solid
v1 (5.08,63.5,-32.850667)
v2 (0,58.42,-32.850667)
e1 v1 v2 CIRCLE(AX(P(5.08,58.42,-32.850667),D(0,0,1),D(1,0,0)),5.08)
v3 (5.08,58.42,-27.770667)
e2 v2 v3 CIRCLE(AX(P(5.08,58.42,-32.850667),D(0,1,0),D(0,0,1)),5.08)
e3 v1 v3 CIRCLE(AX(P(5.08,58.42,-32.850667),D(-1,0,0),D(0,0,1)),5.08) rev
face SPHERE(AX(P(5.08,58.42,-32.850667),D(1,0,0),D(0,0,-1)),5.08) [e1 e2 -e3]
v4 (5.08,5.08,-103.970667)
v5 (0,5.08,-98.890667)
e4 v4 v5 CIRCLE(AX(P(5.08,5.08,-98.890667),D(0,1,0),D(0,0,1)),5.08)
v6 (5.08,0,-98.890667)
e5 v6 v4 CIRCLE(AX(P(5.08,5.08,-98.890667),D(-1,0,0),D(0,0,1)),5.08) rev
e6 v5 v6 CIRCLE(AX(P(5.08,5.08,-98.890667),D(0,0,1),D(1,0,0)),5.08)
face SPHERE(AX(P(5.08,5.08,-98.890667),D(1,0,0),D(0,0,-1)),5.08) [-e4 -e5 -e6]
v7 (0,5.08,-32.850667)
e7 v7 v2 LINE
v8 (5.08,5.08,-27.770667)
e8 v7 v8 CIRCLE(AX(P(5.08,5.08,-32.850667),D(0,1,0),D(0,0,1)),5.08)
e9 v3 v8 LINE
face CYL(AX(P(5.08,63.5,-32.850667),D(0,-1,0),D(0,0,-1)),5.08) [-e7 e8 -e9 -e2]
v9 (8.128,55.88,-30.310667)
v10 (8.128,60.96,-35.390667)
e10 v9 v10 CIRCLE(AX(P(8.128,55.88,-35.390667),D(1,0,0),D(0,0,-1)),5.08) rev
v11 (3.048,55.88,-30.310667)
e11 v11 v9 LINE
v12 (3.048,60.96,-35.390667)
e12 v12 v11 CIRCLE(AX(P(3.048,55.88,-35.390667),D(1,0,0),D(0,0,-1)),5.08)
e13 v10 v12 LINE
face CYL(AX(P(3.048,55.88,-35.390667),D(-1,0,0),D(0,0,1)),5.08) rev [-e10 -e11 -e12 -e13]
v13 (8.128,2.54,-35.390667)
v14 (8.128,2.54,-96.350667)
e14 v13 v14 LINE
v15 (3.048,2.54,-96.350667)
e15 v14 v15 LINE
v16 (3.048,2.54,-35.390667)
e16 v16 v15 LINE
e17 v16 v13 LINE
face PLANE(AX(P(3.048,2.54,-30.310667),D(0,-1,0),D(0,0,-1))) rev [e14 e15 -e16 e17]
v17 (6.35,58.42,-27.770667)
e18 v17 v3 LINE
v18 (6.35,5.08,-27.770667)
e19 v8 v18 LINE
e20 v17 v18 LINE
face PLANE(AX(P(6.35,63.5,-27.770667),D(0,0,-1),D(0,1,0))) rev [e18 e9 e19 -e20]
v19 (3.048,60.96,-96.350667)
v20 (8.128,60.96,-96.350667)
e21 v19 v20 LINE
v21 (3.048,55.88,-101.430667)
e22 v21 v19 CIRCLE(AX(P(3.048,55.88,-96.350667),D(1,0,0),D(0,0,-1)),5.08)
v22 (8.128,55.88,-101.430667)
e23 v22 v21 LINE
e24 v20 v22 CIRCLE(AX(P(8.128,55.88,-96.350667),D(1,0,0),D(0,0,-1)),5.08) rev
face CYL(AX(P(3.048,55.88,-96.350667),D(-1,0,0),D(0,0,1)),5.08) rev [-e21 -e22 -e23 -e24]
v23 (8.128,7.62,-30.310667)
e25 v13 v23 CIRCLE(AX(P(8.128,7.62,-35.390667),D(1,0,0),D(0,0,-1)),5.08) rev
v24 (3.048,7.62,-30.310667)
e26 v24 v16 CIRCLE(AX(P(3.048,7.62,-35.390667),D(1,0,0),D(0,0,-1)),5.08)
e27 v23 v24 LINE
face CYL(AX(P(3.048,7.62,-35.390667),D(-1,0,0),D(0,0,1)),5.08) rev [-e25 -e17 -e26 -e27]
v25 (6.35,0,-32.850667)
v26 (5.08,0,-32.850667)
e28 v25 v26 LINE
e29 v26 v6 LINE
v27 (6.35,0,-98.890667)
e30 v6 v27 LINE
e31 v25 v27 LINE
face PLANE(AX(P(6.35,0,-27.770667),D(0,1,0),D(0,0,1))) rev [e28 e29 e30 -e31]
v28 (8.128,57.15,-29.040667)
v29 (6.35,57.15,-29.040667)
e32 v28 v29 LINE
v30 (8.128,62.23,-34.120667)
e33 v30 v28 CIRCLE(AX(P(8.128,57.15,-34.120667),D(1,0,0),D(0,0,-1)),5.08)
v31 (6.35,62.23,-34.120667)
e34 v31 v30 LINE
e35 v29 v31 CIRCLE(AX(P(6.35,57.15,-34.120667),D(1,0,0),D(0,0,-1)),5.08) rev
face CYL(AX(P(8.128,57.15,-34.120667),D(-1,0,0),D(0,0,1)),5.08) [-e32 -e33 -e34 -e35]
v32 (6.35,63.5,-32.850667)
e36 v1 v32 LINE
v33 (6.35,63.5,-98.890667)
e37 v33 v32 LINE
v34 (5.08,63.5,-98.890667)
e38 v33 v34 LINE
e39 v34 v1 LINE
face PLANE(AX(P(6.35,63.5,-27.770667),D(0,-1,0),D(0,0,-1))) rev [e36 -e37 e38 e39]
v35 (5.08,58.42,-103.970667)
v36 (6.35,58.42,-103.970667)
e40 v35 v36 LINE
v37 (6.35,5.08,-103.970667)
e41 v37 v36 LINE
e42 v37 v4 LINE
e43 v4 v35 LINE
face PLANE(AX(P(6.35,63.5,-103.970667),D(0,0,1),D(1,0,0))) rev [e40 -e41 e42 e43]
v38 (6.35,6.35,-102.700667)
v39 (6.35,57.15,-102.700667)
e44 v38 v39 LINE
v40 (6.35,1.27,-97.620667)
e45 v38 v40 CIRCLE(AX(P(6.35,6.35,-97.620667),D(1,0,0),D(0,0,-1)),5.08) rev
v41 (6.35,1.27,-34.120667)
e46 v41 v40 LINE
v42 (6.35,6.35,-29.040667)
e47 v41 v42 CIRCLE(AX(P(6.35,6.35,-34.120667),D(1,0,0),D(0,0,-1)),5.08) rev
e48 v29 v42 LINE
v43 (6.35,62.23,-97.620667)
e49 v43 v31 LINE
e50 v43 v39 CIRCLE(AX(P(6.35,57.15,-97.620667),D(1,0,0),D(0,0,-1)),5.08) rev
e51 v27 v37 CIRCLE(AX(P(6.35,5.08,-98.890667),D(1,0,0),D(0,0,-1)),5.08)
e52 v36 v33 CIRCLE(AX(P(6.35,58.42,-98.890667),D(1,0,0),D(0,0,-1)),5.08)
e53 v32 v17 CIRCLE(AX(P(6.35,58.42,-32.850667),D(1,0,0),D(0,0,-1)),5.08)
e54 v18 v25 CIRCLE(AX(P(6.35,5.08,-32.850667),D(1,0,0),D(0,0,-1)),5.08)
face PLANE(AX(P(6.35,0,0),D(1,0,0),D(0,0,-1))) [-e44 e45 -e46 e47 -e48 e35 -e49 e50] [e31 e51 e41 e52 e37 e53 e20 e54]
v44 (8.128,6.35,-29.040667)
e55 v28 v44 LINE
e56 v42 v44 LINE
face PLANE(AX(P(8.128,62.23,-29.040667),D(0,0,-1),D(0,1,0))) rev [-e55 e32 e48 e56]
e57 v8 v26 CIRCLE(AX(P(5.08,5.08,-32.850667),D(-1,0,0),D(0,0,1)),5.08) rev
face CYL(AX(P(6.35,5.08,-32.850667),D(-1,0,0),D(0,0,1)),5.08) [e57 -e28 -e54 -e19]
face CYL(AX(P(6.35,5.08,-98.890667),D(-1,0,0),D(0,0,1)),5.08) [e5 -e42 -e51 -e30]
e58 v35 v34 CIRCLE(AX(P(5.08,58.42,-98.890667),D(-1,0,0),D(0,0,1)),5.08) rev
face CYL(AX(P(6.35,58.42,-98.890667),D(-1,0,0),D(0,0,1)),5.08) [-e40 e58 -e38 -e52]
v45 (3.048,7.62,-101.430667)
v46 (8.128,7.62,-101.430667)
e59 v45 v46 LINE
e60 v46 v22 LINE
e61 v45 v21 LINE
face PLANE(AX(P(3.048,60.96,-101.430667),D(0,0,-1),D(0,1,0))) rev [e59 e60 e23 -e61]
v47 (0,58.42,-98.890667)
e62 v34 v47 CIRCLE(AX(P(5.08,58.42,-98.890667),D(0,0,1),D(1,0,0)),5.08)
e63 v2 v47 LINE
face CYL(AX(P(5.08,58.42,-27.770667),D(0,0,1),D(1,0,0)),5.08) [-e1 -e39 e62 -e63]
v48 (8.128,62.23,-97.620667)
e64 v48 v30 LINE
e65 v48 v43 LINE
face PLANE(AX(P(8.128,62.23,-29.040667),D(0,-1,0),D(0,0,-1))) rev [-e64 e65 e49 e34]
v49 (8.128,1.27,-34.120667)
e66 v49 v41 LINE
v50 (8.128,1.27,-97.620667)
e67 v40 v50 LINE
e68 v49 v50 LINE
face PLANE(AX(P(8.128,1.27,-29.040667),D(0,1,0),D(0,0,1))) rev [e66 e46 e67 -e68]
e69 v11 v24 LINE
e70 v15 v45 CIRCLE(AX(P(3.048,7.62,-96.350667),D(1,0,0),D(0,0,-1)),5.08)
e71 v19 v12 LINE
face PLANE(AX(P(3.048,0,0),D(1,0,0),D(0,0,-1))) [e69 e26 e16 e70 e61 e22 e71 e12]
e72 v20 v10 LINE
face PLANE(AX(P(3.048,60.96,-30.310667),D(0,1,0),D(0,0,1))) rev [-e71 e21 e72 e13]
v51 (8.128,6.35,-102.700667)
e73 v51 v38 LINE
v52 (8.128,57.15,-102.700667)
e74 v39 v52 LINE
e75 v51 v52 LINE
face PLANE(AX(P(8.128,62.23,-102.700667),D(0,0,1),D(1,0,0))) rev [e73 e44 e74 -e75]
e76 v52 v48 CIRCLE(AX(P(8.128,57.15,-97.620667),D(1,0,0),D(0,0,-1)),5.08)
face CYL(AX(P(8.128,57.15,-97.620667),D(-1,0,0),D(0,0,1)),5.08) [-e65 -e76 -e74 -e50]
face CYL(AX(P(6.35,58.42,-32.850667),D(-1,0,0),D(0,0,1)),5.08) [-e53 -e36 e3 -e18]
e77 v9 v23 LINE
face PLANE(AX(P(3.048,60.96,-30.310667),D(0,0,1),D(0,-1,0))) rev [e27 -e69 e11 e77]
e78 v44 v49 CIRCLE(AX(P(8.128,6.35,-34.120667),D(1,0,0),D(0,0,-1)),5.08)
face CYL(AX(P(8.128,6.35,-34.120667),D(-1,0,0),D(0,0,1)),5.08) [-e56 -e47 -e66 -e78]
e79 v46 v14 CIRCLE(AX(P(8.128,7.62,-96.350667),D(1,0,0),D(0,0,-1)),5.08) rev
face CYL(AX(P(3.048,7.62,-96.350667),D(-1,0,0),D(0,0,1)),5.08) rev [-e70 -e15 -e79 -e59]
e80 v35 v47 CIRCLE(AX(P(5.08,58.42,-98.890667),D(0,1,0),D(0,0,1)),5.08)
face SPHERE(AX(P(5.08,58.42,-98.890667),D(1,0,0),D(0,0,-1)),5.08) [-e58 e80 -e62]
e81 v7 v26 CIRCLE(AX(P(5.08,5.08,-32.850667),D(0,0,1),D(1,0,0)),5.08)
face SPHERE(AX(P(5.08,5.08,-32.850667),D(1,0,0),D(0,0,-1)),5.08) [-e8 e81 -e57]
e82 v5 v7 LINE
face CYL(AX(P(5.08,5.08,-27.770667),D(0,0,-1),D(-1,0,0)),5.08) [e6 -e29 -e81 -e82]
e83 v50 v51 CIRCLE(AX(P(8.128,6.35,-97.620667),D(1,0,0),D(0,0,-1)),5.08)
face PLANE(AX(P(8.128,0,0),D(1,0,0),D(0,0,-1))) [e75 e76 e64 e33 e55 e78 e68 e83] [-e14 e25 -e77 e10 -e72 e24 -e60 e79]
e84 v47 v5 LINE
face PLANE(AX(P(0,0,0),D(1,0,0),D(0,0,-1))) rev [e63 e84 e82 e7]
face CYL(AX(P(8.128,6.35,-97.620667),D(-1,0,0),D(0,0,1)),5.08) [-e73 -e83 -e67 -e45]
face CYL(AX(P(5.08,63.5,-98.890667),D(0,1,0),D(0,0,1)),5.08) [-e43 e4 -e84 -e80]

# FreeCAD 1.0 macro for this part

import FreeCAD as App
import Part
import Sketcher
from FreeCAD import Vector
Q = App.Units.Quantity


def edges_at(feature, points):
    """Names of the edges that pass closest to the given points."""
    edges = feature.Shape.Edges
    near = lambda p: min(range(len(edges)), key=lambda i: edges[i].distToShape(Part.Vertex(*p))[0])
    return sorted({f"Edge{near(p) + 1}" for p in points})


def add_polygon(sketch, points):
    """Adds a closed chain of lines whose ends are joined by coincident constraints."""
    first, n = sketch.GeometryCount, len(points)
    for a, b in zip(points, points[1:] + points[:1]):
        sketch.addGeometry(Part.LineSegment(App.Vector(*a, 0), App.Vector(*b, 0)), False)
    for i in range(n):
        sketch.addConstraint(Sketcher.Constraint("Coincident", first + i, 2, first + (i + 1) % n, 1))

doc = App.newDocument("Part")
body = doc.addObject("PartDesign::Body", "Body")

# Sketch on YZ plane
sketch1 = body.newObject("Sketcher::SketchObject", "Sketch")
sketch1.AttachmentSupport = (doc.getObject("YZ_Plane"), [""])
sketch1.MapMode = "FlatFace"
add_polygon(sketch1, [(64, -28), (0, -28), (0, -104), (64, -104)])  # lines 0-3
sketch1.addConstraint(Sketcher.Constraint("Horizontal", 0))
sketch1.addConstraint(Sketcher.Constraint("Vertical", 1))
sketch1.addConstraint(Sketcher.Constraint("Horizontal", 2))
sketch1.addConstraint(Sketcher.Constraint("Vertical", 3))
sketch1.addConstraint(Sketcher.Constraint("PointOnObject", 0, 2, -2))
sketch1.addConstraint(Sketcher.Constraint("DistanceY", 1, 2, 1, 1, Q("3 in")))
sketch1.addConstraint(Sketcher.Constraint("DistanceX", 0, 2, 0, 1, Q("2.5 in")))
sketch1.addConstraint(Sketcher.Constraint("DistanceY", 0, 2, -1, 1, Q("27.770667 mm")))
pad1 = body.newObject("PartDesign::Pad", "Pad")
pad1.Profile = sketch1
pad1.Length = Q("0.25 in")

# Sketch on YZ plane
sketch2 = body.newObject("Sketcher::SketchObject", "Sketch001")
sketch2.AttachmentSupport = (doc.getObject("YZ_Plane"), [""])
sketch2.MapMode = "FlatFace"
sketch2.AttachmentOffset = App.Placement(Vector(0, 0, 0.25 * 25.4), App.Rotation())
add_polygon(sketch2, [(62, -29), (1, -29), (1, -103), (62, -103)])  # lines 0-3
sketch2.addConstraint(Sketcher.Constraint("Horizontal", 0))
sketch2.addConstraint(Sketcher.Constraint("Vertical", 1))
sketch2.addConstraint(Sketcher.Constraint("Horizontal", 2))
sketch2.addConstraint(Sketcher.Constraint("Vertical", 3))
sketch2.addConstraint(Sketcher.Constraint("DistanceX", 0, 2, 0, 1, Q("2.4 in")))
sketch2.addConstraint(Sketcher.Constraint("DistanceY", 1, 2, 1, 1, Q("2.9 in")))
sketch2.addConstraint(Sketcher.Constraint("DistanceX", -1, 1, 0, 2, Q("0.05 in")))
sketch2.addConstraint(Sketcher.Constraint("DistanceY", 0, 2, -1, 1, Q("29.040667 mm")))
pad2 = body.newObject("PartDesign::Pad", "Pad001")
pad2.Profile = sketch2
pad2.Length = Q("0.07 in")

# Sketch on YZ plane
sketch3 = body.newObject("Sketcher::SketchObject", "Sketch002")
sketch3.AttachmentSupport = (doc.getObject("YZ_Plane"), [""])
sketch3.MapMode = "FlatFace"
sketch3.AttachmentOffset = App.Placement(Vector(0, 0, 0.32 * 25.4), App.Rotation())
add_polygon(sketch3, [(61, -30), (3, -30), (3, -101), (61, -101)])  # lines 0-3
sketch3.addConstraint(Sketcher.Constraint("Horizontal", 0))
sketch3.addConstraint(Sketcher.Constraint("Vertical", 1))
sketch3.addConstraint(Sketcher.Constraint("Horizontal", 2))
sketch3.addConstraint(Sketcher.Constraint("Vertical", 3))
sketch3.addConstraint(Sketcher.Constraint("DistanceX", 0, 2, 0, 1, Q("2.3 in")))
sketch3.addConstraint(Sketcher.Constraint("DistanceY", 1, 2, 1, 1, Q("2.8 in")))
sketch3.addConstraint(Sketcher.Constraint("DistanceX", -1, 1, 0, 2, Q("0.1 in")))
sketch3.addConstraint(Sketcher.Constraint("DistanceY", 0, 2, -1, 1, Q("30.310667 mm")))
pocket1 = body.newObject("PartDesign::Pocket", "Pocket")
pocket1.Profile = sketch3
pocket1.Length = Q("0.2 in")
doc.recompute()

fillet = body.newObject("PartDesign::Fillet", "Fillet")
fillet.Base = (pocket1, edges_at(pocket1, [(5.588, 2.54, -30.311), (5.588, 2.54, -101.431)]))
fillet.Radius = Q("0.2 in")
doc.recompute()

fillet2 = body.newObject("PartDesign::Fillet", "Fillet001")
fillet2.Base = (fillet, edges_at(fillet, [(5.588, 60.96, -30.311), (5.588, 60.96, -101.431)]))
fillet2.Radius = Q("0.2 in")
doc.recompute()

fillet3 = body.newObject("PartDesign::Fillet", "Fillet002")
fillet3.Base = (fillet2, edges_at(fillet2, [(7.239, 1.27, -29.041)]))
fillet3.Radius = Q("0.2 in")
doc.recompute()

fillet4 = body.newObject("PartDesign::Fillet", "Fillet003")
fillet4.Base = (fillet3, edges_at(fillet3, [(3.175, 0, -27.771)]))
fillet4.Radius = Q("0.2 in")
doc.recompute()

fillet5 = body.newObject("PartDesign::Fillet", "Fillet004")
fillet5.Base = (fillet4, edges_at(fillet4, [
    (7.239, 1.27, -102.701),
    (7.239, 62.23, -102.701),
    (3.175, 63.5, -103.971),
    (3.175, 0, -103.971),
]))
fillet5.Radius = Q("0.2 in")
doc.recompute()

fillet6 = body.newObject("PartDesign::Fillet", "Fillet005")
fillet6.Base = (fillet5, edges_at(fillet5, [(7.239, 62.23, -29.041), (3.175, 63.5, -27.771)]))
fillet6.Radius = Q("0.2 in")
doc.recompute()

fillet7 = body.newObject("PartDesign::Fillet", "Fillet006")
fillet7.Base = (fillet6, edges_at(fillet6, [
    (0, 31.75, -27.771),
    (0, 62.012, -29.259),
    (0, 0, -65.871),
    (0, 1.488, -29.259),
    (0, 63.5, -65.871),
    (0, 31.75, -103.971),
    (0, 1.488, -102.483),
    (0, 62.012, -102.483),
]))
fillet7.Radius = Q("0.2 in")

doc.recompute()
